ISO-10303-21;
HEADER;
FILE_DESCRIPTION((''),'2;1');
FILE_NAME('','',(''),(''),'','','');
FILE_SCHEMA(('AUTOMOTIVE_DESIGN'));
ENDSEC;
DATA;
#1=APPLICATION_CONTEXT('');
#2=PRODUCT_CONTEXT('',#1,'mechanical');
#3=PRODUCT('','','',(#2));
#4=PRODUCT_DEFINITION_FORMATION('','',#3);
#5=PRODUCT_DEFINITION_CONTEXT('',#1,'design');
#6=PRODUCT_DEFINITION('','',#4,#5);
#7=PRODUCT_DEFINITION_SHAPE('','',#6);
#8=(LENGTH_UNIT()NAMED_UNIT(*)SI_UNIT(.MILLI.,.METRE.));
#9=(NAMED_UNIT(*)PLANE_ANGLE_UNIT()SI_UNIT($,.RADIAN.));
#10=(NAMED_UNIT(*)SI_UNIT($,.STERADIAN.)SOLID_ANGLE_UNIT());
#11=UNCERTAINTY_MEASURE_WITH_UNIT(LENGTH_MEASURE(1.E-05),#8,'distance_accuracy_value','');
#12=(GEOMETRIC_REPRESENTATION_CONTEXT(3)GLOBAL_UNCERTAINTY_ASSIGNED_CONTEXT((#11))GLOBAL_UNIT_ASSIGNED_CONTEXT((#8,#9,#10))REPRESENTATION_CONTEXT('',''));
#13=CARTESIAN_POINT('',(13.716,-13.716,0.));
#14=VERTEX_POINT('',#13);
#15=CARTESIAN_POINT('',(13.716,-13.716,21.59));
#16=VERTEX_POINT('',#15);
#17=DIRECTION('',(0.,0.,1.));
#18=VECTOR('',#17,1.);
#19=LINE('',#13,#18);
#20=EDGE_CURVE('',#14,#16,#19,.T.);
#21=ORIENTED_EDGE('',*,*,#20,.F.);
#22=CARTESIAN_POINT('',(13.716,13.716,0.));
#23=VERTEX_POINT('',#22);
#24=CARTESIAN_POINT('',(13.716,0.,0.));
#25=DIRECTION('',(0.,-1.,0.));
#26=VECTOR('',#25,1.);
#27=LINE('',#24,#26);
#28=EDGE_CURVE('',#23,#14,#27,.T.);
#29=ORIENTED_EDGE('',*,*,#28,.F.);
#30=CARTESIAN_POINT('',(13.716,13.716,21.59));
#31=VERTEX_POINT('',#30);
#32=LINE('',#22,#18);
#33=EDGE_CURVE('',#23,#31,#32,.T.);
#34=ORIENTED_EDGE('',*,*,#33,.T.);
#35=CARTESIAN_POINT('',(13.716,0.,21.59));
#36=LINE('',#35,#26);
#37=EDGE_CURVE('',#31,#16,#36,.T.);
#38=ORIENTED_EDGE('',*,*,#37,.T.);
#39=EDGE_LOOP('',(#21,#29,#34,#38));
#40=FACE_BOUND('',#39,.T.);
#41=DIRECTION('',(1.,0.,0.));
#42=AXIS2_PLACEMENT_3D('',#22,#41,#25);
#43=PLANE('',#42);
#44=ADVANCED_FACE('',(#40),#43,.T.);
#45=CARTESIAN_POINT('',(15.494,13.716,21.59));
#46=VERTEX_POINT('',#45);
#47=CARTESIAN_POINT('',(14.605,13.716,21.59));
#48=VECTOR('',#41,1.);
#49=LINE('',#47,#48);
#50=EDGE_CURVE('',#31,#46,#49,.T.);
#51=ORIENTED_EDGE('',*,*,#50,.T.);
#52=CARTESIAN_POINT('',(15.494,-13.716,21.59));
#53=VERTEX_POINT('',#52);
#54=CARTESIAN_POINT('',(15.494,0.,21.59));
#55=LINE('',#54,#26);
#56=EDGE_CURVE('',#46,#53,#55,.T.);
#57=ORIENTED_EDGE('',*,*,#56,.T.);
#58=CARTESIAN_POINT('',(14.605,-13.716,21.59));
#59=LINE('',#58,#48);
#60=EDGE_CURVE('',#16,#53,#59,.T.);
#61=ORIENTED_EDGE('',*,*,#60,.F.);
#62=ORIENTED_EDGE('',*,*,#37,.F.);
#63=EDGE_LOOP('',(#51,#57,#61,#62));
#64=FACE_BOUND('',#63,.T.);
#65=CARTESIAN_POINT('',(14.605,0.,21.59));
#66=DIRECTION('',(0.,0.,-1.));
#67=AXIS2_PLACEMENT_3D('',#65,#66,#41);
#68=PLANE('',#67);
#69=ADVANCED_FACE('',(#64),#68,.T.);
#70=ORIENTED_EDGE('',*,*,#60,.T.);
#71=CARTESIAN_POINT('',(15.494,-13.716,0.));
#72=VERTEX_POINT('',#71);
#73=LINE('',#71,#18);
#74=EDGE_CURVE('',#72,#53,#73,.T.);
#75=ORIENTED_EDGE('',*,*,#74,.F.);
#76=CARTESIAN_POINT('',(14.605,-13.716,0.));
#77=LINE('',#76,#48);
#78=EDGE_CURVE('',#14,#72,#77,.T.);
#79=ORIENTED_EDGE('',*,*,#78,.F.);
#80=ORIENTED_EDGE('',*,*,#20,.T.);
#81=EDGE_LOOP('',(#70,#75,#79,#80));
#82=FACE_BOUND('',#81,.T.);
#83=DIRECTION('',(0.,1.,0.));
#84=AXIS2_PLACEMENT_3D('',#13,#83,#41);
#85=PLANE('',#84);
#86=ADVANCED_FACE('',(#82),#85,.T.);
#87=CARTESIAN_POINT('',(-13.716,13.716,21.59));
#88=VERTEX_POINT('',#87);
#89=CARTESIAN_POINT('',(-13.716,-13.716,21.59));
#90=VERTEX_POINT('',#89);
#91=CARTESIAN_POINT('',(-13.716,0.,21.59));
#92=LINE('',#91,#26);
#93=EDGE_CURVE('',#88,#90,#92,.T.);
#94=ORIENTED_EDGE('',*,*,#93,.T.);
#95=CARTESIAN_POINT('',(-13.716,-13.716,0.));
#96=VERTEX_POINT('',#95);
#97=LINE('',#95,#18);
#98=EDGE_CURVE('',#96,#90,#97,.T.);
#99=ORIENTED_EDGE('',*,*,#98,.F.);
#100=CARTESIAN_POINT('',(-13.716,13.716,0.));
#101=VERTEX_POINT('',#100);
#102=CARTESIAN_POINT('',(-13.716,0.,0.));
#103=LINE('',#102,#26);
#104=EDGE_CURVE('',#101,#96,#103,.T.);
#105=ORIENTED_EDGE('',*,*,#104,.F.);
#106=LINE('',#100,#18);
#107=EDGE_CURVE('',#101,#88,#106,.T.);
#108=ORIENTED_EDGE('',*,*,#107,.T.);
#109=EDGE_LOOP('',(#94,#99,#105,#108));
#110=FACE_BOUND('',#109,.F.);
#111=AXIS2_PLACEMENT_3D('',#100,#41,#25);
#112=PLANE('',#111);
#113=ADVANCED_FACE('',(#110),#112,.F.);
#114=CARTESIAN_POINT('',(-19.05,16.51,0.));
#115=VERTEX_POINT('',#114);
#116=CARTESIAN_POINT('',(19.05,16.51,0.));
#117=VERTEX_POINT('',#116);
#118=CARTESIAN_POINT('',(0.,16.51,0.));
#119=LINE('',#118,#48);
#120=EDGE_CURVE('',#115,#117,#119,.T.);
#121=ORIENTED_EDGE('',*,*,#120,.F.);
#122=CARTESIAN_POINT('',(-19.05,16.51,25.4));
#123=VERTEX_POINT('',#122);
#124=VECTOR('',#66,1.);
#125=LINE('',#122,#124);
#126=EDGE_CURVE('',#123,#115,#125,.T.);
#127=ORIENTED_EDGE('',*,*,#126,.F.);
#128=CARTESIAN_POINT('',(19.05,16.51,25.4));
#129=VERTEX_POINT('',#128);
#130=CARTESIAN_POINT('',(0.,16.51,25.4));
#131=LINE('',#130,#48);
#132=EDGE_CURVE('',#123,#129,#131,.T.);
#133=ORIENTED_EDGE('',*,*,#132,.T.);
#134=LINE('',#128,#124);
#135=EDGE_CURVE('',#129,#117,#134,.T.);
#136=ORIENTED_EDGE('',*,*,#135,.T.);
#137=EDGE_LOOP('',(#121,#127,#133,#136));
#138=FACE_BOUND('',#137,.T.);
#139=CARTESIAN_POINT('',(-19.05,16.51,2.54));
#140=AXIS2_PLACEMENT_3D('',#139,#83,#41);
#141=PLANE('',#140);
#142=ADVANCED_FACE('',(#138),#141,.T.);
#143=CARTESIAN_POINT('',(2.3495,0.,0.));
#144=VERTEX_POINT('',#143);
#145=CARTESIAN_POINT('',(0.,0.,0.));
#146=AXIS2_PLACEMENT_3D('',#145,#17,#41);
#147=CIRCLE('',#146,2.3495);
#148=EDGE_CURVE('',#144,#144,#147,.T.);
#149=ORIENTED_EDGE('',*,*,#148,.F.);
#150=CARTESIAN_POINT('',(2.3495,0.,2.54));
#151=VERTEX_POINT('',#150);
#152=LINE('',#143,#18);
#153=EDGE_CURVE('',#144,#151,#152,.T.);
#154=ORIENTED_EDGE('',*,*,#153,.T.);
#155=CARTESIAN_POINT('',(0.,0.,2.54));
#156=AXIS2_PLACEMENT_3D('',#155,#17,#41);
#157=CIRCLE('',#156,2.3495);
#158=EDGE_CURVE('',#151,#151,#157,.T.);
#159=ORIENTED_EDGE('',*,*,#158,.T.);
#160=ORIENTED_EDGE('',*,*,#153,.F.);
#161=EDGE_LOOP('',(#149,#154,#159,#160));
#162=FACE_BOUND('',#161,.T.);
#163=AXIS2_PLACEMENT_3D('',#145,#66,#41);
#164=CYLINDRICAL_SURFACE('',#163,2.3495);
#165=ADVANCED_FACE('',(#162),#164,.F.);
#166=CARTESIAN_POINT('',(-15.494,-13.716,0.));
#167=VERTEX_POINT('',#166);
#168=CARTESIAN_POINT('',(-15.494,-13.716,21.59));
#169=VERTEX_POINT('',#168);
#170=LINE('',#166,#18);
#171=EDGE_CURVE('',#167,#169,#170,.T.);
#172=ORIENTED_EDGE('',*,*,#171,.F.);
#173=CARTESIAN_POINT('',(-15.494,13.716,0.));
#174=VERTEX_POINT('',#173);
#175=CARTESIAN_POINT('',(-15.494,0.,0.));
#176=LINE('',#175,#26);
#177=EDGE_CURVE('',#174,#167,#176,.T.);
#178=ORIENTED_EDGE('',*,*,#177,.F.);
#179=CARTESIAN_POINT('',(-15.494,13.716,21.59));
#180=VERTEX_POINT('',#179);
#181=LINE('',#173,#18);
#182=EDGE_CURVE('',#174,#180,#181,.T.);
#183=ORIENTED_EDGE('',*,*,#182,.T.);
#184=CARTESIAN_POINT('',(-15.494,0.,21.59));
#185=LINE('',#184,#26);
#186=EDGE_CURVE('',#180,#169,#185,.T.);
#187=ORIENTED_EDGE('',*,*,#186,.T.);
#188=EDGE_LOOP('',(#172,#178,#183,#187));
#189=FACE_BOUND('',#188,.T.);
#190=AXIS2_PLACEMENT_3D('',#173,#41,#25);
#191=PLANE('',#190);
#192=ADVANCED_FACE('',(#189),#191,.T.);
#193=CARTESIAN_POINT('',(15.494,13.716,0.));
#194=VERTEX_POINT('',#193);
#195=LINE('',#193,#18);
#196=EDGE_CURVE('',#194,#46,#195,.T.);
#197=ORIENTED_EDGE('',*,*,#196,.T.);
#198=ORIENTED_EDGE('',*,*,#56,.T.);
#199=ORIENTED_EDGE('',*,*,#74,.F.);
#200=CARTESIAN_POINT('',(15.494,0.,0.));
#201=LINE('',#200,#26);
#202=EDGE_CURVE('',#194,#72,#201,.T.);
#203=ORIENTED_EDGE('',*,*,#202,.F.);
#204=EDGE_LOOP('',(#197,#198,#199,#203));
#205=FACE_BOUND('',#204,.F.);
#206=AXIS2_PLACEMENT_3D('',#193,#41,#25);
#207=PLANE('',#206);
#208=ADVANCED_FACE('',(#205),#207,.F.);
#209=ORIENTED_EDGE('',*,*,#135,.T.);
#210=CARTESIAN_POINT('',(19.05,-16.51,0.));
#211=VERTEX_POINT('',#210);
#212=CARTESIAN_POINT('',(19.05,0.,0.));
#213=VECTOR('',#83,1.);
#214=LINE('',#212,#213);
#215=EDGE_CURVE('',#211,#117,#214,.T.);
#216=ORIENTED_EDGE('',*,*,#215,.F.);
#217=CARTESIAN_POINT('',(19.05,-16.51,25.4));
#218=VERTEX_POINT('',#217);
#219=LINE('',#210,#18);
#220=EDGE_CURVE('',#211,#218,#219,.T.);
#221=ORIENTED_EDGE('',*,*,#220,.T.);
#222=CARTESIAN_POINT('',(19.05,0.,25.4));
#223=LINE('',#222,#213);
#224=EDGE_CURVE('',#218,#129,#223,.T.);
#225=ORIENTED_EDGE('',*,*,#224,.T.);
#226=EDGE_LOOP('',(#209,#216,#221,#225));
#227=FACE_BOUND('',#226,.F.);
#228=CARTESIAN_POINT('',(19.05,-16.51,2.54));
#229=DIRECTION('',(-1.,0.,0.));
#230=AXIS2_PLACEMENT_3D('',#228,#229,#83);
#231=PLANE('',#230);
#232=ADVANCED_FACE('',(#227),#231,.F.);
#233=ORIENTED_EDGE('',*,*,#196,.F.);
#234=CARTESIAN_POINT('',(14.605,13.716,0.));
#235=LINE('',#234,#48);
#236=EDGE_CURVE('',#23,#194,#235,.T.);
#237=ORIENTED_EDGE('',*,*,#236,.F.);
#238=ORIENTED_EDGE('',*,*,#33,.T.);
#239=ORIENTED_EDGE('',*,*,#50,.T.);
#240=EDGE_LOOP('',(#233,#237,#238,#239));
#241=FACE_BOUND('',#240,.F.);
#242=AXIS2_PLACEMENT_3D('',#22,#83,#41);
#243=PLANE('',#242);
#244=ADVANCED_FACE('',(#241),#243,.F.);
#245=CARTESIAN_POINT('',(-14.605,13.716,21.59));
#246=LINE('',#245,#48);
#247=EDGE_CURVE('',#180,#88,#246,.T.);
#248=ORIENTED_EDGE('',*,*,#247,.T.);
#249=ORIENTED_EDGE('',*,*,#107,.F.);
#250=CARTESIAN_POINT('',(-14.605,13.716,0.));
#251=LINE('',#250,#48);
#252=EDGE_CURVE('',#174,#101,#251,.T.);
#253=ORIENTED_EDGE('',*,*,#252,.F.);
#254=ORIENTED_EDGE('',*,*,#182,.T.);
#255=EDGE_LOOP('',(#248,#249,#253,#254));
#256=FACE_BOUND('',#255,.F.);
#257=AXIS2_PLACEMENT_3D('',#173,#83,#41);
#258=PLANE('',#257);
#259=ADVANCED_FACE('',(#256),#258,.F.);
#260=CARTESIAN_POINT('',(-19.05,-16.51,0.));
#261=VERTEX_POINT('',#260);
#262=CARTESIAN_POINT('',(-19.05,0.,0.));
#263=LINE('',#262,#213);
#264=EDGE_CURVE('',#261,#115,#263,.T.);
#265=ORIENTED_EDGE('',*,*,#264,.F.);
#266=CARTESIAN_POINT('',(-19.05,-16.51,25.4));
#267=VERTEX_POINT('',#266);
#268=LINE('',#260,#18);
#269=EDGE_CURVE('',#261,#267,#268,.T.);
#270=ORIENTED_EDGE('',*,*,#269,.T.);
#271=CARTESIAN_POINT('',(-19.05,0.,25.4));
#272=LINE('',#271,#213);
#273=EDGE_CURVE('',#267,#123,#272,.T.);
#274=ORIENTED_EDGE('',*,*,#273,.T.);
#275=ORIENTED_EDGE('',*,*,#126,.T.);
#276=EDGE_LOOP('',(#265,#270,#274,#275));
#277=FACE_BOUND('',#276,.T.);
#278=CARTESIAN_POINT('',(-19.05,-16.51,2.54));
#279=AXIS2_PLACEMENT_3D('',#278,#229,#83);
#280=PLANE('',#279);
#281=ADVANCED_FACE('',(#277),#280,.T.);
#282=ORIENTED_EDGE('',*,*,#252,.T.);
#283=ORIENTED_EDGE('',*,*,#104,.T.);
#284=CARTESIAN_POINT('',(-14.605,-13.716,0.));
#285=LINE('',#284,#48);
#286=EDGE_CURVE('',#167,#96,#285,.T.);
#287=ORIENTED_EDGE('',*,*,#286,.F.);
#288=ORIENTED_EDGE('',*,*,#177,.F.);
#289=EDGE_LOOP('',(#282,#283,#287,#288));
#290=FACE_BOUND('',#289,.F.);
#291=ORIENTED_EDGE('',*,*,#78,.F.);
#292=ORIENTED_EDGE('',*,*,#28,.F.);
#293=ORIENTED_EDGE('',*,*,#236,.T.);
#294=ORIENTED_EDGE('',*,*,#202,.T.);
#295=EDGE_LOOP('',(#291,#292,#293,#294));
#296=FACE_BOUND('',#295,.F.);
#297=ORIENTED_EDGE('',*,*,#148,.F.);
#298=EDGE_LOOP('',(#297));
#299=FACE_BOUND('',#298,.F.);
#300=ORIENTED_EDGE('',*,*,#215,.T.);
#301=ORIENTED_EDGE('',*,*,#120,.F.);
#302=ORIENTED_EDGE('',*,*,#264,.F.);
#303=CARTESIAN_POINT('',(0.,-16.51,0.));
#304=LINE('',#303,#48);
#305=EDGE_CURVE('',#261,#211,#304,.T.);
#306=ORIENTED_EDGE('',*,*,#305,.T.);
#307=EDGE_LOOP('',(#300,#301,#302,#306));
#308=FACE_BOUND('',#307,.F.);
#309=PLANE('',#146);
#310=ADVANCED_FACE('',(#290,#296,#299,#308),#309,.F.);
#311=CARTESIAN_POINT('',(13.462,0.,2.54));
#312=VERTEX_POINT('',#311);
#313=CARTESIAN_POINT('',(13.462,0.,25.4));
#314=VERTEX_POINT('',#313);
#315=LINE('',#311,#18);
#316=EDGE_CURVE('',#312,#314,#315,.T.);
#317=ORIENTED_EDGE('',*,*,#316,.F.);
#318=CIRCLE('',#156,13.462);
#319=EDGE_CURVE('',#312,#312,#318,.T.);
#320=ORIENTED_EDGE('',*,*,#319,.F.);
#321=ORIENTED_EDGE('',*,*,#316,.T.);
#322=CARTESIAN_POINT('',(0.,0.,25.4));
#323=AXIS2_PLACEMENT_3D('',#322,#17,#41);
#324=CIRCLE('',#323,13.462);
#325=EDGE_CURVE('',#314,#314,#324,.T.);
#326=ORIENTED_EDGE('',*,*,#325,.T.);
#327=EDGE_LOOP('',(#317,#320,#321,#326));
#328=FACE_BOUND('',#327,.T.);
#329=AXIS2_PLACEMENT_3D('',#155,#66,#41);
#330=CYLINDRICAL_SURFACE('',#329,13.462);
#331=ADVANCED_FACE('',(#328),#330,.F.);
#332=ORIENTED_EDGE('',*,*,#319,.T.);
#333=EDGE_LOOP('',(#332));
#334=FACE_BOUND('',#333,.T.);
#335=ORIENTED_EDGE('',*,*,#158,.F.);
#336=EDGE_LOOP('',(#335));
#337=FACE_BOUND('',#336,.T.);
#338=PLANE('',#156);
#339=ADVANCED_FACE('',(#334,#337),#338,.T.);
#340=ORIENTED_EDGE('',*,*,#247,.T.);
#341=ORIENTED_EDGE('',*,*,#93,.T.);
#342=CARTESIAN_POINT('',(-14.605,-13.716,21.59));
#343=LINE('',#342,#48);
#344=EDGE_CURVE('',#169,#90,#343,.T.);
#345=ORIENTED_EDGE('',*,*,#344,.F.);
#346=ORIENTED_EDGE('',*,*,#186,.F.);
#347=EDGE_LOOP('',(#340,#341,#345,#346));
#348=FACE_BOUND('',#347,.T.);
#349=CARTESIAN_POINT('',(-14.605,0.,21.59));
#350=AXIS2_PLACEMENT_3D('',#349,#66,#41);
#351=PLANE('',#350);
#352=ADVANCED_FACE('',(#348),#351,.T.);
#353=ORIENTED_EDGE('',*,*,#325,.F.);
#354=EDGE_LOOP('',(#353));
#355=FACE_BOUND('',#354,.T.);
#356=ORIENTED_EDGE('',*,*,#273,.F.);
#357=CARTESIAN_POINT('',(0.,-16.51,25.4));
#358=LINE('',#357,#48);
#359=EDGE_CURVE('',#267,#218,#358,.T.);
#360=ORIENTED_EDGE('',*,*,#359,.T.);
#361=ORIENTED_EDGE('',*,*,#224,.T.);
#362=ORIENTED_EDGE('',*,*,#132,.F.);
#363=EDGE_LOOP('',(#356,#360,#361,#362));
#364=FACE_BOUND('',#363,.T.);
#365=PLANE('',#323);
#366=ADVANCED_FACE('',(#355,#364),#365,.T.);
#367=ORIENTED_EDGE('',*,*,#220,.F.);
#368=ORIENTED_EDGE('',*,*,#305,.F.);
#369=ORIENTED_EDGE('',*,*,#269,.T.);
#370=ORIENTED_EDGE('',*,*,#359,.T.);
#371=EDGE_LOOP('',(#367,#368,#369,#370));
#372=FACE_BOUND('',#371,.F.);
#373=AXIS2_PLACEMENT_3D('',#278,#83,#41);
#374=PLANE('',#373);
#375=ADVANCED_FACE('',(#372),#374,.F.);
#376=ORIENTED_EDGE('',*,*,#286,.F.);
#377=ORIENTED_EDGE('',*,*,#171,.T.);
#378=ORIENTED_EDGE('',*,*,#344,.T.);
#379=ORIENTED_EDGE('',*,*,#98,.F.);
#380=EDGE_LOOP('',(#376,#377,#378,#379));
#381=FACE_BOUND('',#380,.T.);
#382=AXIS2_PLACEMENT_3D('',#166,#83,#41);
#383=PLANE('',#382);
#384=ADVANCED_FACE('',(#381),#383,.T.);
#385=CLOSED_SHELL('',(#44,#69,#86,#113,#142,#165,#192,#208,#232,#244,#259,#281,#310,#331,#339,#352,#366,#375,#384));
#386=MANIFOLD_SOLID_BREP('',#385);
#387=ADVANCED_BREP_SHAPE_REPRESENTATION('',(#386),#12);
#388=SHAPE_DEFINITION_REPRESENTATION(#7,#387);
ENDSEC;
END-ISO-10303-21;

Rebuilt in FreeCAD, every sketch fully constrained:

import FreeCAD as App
import Part
import Sketcher

V = App.Vector
Q = App.Units.Quantity

doc = App.newDocument("Part")
params = doc.addObject("Spreadsheet::Sheet", "Params")
for row, (alias, value) in enumerate([
    ("sketch1_diameter", "0.185 in"),
    ("sketch1_width", "1.5 in"),
    ("sketch1_height", "1.3 in"),
    ("pad1_length", "0.1 in"),
    ("sketch2_diameter", "1.06 in"),
    ("sketch2_width", "1.5 in"),
    ("sketch2_height", "1.3 in"),
    ("pad2_length", "0.9 in"),
    ("sketch3_width", "0.07 in"),
    ("sketch3_height", "1.08 in"),
    ("pocket1_length", "0.85 in"),
], start=1):
    params.set(f"A{row}", alias)
    params.set(f"B{row}", "=" + value)
    params.setAlias(f"B{row}", alias)

body = doc.addObject("PartDesign::Body", "Body")

# Sketch on XY plane
sketch1 = body.newObject("Sketcher::SketchObject", "Sketch")
sketch1.AttachmentSupport = (doc.getObject("XY_Plane"), [""])
sketch1.MapMode = "FlatFace"
sketch1.addGeometry([
    Part.LineSegment(V(-19.05, 16.51, 0), V(-19.05, -16.51, 0)),  # 0
    Part.LineSegment(V(-19.05, -16.51, 0), V(19.05, -16.51, 0)),  # 1
    Part.LineSegment(V(19.05, -16.51, 0), V(19.05, 16.51, 0)),  # 2
    Part.LineSegment(V(19.05, 16.51, 0), V(-19.05, 16.51, 0)),  # 3
    Part.Circle(V(0, 0, 0), V(0, 0, 1), 2.3495),  # 4
], False)
sketch1.addConstraint([
    Sketcher.Constraint("Coincident", 0, 2, 1, 1),
    Sketcher.Constraint("Coincident", 1, 2, 2, 1),
    Sketcher.Constraint("Coincident", 2, 2, 3, 1),
    Sketcher.Constraint("Coincident", 3, 2, 0, 1),
    Sketcher.Constraint("Vertical", 0),
    Sketcher.Constraint("Horizontal", 1),
    Sketcher.Constraint("Vertical", 2),
    Sketcher.Constraint("Horizontal", 3),
    Sketcher.Constraint("Coincident", 4, 3, -1, 1),
    Sketcher.Constraint("Symmetric", 0, 2, 2, 2, -1, 1),
    Sketcher.Constraint("Diameter", 4, Q("0.185 in")),
    Sketcher.Constraint("DistanceX", 1, 1, 1, 2, Q("1.5 in")),
    Sketcher.Constraint("DistanceY", 0, 2, 0, 1, Q("1.3 in")),
])
sketch1.setExpression("Constraints[10]", "Params.sketch1_diameter")
sketch1.setExpression("Constraints[11]", "Params.sketch1_width")
sketch1.setExpression("Constraints[12]", "Params.sketch1_height")
pad1 = body.newObject("PartDesign::Pad", "Pad")
pad1.Profile = sketch1
pad1.setExpression("Length", "Params.pad1_length")

# Sketch on XY plane
sketch2 = body.newObject("Sketcher::SketchObject", "Sketch001")
sketch2.AttachmentSupport = (doc.getObject("XY_Plane"), [""])
sketch2.MapMode = "FlatFace"
sketch2.AttachmentOffset = App.Placement(V(0, 0, 0.1 * 25.4), App.Rotation())
sketch2.addGeometry([
    Part.LineSegment(V(-19.05, 16.51, 0), V(-19.05, -16.51, 0)),  # 0
    Part.LineSegment(V(-19.05, -16.51, 0), V(19.05, -16.51, 0)),  # 1
    Part.LineSegment(V(19.05, -16.51, 0), V(19.05, 16.51, 0)),  # 2
    Part.LineSegment(V(19.05, 16.51, 0), V(-19.05, 16.51, 0)),  # 3
    Part.Circle(V(0, 0, 0), V(0, 0, 1), 13.462),  # 4
], False)
sketch2.addConstraint([
    Sketcher.Constraint("Coincident", 0, 2, 1, 1),
    Sketcher.Constraint("Coincident", 1, 2, 2, 1),
    Sketcher.Constraint("Coincident", 2, 2, 3, 1),
    Sketcher.Constraint("Coincident", 3, 2, 0, 1),
    Sketcher.Constraint("Vertical", 0),
    Sketcher.Constraint("Horizontal", 1),
    Sketcher.Constraint("Vertical", 2),
    Sketcher.Constraint("Horizontal", 3),
    Sketcher.Constraint("Coincident", 4, 3, -1, 1),
    Sketcher.Constraint("Symmetric", 0, 2, 2, 2, -1, 1),
    Sketcher.Constraint("Diameter", 4, Q("1.06 in")),
    Sketcher.Constraint("DistanceX", 1, 1, 1, 2, Q("1.5 in")),
    Sketcher.Constraint("DistanceY", 0, 2, 0, 1, Q("1.3 in")),
])
sketch2.setExpression("Constraints[10]", "Params.sketch2_diameter")
sketch2.setExpression("Constraints[11]", "Params.sketch2_width")
sketch2.setExpression("Constraints[12]", "Params.sketch2_height")
pad2 = body.newObject("PartDesign::Pad", "Pad001")
pad2.Profile = sketch2
pad2.setExpression("Length", "Params.pad2_length")

# Sketch on XY plane
sketch3 = body.newObject("Sketcher::SketchObject", "Sketch002")
sketch3.AttachmentSupport = (doc.getObject("XY_Plane"), [""])
sketch3.MapMode = "FlatFace"
sketch3.addGeometry([
    Part.LineSegment(V(13.716, -13.716, 0), V(13.716, 13.716, 0)),  # 0
    Part.LineSegment(V(13.716, 13.716, 0), V(15.494, 13.716, 0)),  # 1
    Part.LineSegment(V(15.494, 13.716, 0), V(15.494, -13.716, 0)),  # 2
    Part.LineSegment(V(15.494, -13.716, 0), V(13.716, -13.716, 0)),  # 3
    Part.LineSegment(V(-15.494, -13.716, 0), V(-15.494, 13.716, 0)),  # 4
    Part.LineSegment(V(-15.494, 13.716, 0), V(-13.716, 13.716, 0)),  # 5
    Part.LineSegment(V(-13.716, 13.716, 0), V(-13.716, -13.716, 0)),  # 6
    Part.LineSegment(V(-13.716, -13.716, 0), V(-15.494, -13.716, 0)),  # 7
], False)
sketch3.addConstraint([
    Sketcher.Constraint("Coincident", 0, 2, 1, 1),
    Sketcher.Constraint("Coincident", 1, 2, 2, 1),
    Sketcher.Constraint("Coincident", 2, 2, 3, 1),
    Sketcher.Constraint("Coincident", 3, 2, 0, 1),
    Sketcher.Constraint("Coincident", 4, 2, 5, 1),
    Sketcher.Constraint("Coincident", 5, 2, 6, 1),
    Sketcher.Constraint("Coincident", 6, 2, 7, 1),
    Sketcher.Constraint("Coincident", 7, 2, 4, 1),
    Sketcher.Constraint("Vertical", 0),
    Sketcher.Constraint("Horizontal", 1),
    Sketcher.Constraint("Vertical", 2),
    Sketcher.Constraint("Horizontal", 3),
    Sketcher.Constraint("Vertical", 4),
    Sketcher.Constraint("Horizontal", 5),
    Sketcher.Constraint("Vertical", 6),
    Sketcher.Constraint("Horizontal", 7),
    Sketcher.Constraint("Symmetric", 2, 2, 4, 2, -1, 1),
    Sketcher.Constraint("Symmetric", 0, 2, 6, 2, -1, 1),
    Sketcher.Constraint("Horizontal", 1, 2, 4, 2),
    Sketcher.Constraint("DistanceX", 1, 1, 1, 2, Q("0.07 in")),
    Sketcher.Constraint("DistanceY", 0, 1, 0, 2, Q("1.08 in")),
    Sketcher.Constraint("DistanceX", -1, 1, 0, 2, Q("0.54 in")),
])
sketch3.setExpression("Constraints[19]", "Params.sketch3_width")
sketch3.setExpression("Constraints[20]", "Params.sketch3_height")
pocket1 = body.newObject("PartDesign::Pocket", "Pocket")
pocket1.Profile = sketch3
pocket1.setExpression("Length", "Params.pocket1_length")
pocket1.Reversed = True

doc.recompute()
